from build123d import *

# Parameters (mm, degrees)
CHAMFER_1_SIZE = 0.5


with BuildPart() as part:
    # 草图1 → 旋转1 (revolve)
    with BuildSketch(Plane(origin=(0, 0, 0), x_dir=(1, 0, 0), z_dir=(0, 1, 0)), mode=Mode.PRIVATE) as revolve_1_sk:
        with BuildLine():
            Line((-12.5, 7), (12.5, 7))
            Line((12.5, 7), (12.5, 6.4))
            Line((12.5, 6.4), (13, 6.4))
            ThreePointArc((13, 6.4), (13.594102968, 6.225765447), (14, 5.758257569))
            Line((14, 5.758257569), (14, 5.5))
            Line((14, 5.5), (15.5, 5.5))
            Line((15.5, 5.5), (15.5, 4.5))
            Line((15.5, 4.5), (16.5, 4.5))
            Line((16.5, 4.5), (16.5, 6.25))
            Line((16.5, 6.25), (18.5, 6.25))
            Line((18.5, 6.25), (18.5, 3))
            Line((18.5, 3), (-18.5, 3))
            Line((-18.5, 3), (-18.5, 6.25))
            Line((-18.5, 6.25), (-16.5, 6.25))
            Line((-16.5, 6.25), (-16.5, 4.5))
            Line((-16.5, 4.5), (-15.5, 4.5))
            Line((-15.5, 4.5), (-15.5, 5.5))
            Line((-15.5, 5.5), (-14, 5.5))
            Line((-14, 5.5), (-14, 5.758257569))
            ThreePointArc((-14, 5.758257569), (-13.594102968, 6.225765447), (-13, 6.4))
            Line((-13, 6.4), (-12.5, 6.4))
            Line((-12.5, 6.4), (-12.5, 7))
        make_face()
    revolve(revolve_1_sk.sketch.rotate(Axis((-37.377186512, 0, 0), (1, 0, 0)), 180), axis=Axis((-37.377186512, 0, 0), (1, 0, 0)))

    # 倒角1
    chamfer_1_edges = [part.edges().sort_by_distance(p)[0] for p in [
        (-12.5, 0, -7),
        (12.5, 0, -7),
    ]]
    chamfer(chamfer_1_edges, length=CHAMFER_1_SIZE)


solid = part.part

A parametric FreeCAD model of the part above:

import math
import FreeCAD as App
import Part
import Sketcher

V = App.Vector
Q = App.Units.Quantity


def edges_at(feature, points):
    """Names of the edges that pass closest to the given points."""
    edges = feature.Shape.Edges
    near = lambda p: min(range(len(edges)), key=lambda i: edges[i].distToShape(Part.Vertex(*p))[0])
    return sorted({f"Edge{near(p) + 1}" for p in points})

doc = App.newDocument("Part")
body = doc.addObject("PartDesign::Body", "Body")

# Sketch on XZ plane
sketch1 = body.newObject("Sketcher::SketchObject", "Sketch")
sketch1.AttachmentSupport = (doc.getObject("XZ_Plane"), [""])
sketch1.MapMode = "FlatFace"
sketch1.addGeometry(Part.LineSegment(V(12.5, -7, 0), V(-12.5, -7, 0)), False)
sketch1.addGeometry(Part.LineSegment(V(-12.5, -7, 0), V(-12.5, -6.4, 0)), False)
sketch1.addGeometry(Part.LineSegment(V(-12.5, -6.4, 0), V(-13, -6.4, 0)), False)
sketch1.addGeometry(Part.ArcOfCircle(Part.Circle(V(-13, -5.3, 0), V(0, 0, 1), 1.1), math.radians(-155), math.radians(-90)), False)
sketch1.addGeometry(Part.LineSegment(V(-14, -5.76, 0), V(-14, -5.5, 0)), False)
sketch1.addGeometry(Part.LineSegment(V(-14, -5.5, 0), V(-15.5, -5.5, 0)), False)
sketch1.addGeometry(Part.LineSegment(V(-15.5, -5.5, 0), V(-15.5, -4.5, 0)), False)
sketch1.addGeometry(Part.LineSegment(V(-15.5, -4.5, 0), V(-16.5, -4.5, 0)), False)
sketch1.addGeometry(Part.LineSegment(V(-16.5, -4.5, 0), V(-16.5, -6.25, 0)), False)
sketch1.addGeometry(Part.LineSegment(V(-16.5, -6.25, 0), V(-18.5, -6.25, 0)), False)
sketch1.addGeometry(Part.LineSegment(V(-18.5, -6.25, 0), V(-18.5, -3, 0)), False)
sketch1.addGeometry(Part.LineSegment(V(-18.5, -3, 0), V(18.5, -3, 0)), False)
sketch1.addGeometry(Part.LineSegment(V(18.5, -3, 0), V(18.5, -6.25, 0)), False)
sketch1.addGeometry(Part.LineSegment(V(18.5, -6.25, 0), V(16.5, -6.25, 0)), False)
sketch1.addGeometry(Part.LineSegment(V(16.5, -6.25, 0), V(16.5, -4.5, 0)), False)
sketch1.addGeometry(Part.LineSegment(V(16.5, -4.5, 0), V(15.5, -4.5, 0)), False)
sketch1.addGeometry(Part.LineSegment(V(15.5, -4.5, 0), V(15.5, -5.5, 0)), False)
sketch1.addGeometry(Part.LineSegment(V(15.5, -5.5, 0), V(14, -5.5, 0)), False)
sketch1.addGeometry(Part.LineSegment(V(14, -5.5, 0), V(14, -5.76, 0)), False)
sketch1.addGeometry(Part.ArcOfCircle(Part.Circle(V(13, -5.3, 0), V(0, 0, 1), 1.1), math.radians(-90), math.radians(-25)), False)
sketch1.addGeometry(Part.LineSegment(V(13, -6.4, 0), V(12.5, -6.4, 0)), False)
sketch1.addGeometry(Part.LineSegment(V(12.5, -6.4, 0), V(12.5, -7, 0)), False)
sketch1.addConstraint(Sketcher.Constraint("Coincident", 0, 2, 1, 1))
sketch1.addConstraint(Sketcher.Constraint("Coincident", 1, 2, 2, 1))
sketch1.addConstraint(Sketcher.Constraint("Tangent", 2, 2, 3, 2))
sketch1.addConstraint(Sketcher.Constraint("Coincident", 3, 1, 4, 1))
sketch1.addConstraint(Sketcher.Constraint("Coincident", 4, 2, 5, 1))
sketch1.addConstraint(Sketcher.Constraint("Coincident", 5, 2, 6, 1))
sketch1.addConstraint(Sketcher.Constraint("Coincident", 6, 2, 7, 1))
sketch1.addConstraint(Sketcher.Constraint("Coincident", 7, 2, 8, 1))
sketch1.addConstraint(Sketcher.Constraint("Coincident", 8, 2, 9, 1))
sketch1.addConstraint(Sketcher.Constraint("Coincident", 9, 2, 10, 1))
sketch1.addConstraint(Sketcher.Constraint("Coincident", 10, 2, 11, 1))
sketch1.addConstraint(Sketcher.Constraint("Coincident", 11, 2, 12, 1))
sketch1.addConstraint(Sketcher.Constraint("Coincident", 12, 2, 13, 1))
sketch1.addConstraint(Sketcher.Constraint("Coincident", 13, 2, 14, 1))
sketch1.addConstraint(Sketcher.Constraint("Coincident", 14, 2, 15, 1))
sketch1.addConstraint(Sketcher.Constraint("Coincident", 15, 2, 16, 1))
sketch1.addConstraint(Sketcher.Constraint("Coincident", 16, 2, 17, 1))
sketch1.addConstraint(Sketcher.Constraint("Coincident", 17, 2, 18, 1))
sketch1.addConstraint(Sketcher.Constraint("Coincident", 18, 2, 19, 2))
sketch1.addConstraint(Sketcher.Constraint("Tangent", 19, 1, 20, 1))
sketch1.addConstraint(Sketcher.Constraint("Coincident", 20, 2, 21, 1))
sketch1.addConstraint(Sketcher.Constraint("Coincident", 21, 2, 0, 1))
sketch1.addConstraint(Sketcher.Constraint("Horizontal", 0))
sketch1.addConstraint(Sketcher.Constraint("Vertical", 1))
sketch1.addConstraint(Sketcher.Constraint("Horizontal", 2))
sketch1.addConstraint(Sketcher.Constraint("Vertical", 4))
sketch1.addConstraint(Sketcher.Constraint("Horizontal", 5))
sketch1.addConstraint(Sketcher.Constraint("Vertical", 6))
sketch1.addConstraint(Sketcher.Constraint("Horizontal", 7))
sketch1.addConstraint(Sketcher.Constraint("Vertical", 8))
sketch1.addConstraint(Sketcher.Constraint("Horizontal", 9))
sketch1.addConstraint(Sketcher.Constraint("Vertical", 10))
sketch1.addConstraint(Sketcher.Constraint("Horizontal", 11))
sketch1.addConstraint(Sketcher.Constraint("Vertical", 12))
sketch1.addConstraint(Sketcher.Constraint("Horizontal", 13))
sketch1.addConstraint(Sketcher.Constraint("Vertical", 14))
sketch1.addConstraint(Sketcher.Constraint("Horizontal", 15))
sketch1.addConstraint(Sketcher.Constraint("Vertical", 16))
sketch1.addConstraint(Sketcher.Constraint("Horizontal", 17))
sketch1.addConstraint(Sketcher.Constraint("Vertical", 18))
sketch1.addConstraint(Sketcher.Constraint("Horizontal", 20))
sketch1.addConstraint(Sketcher.Constraint("Vertical", 21))
sketch1.addConstraint(Sketcher.Constraint("Equal", 3, 19))
sketch1.addConstraint(Sketcher.Constraint("Symmetric", 3, 3, 19, 3, -2))
sketch1.addConstraint(Sketcher.Constraint("Symmetric", 9, 2, 12, 2, -2))
sketch1.addConstraint(Sketcher.Constraint("Symmetric", 7, 2, 14, 2, -2))
sketch1.addConstraint(Sketcher.Constraint("Symmetric", 5, 2, 16, 2, -2))
sketch1.addConstraint(Sketcher.Constraint("Horizontal", 3, 1, 18, 2))
sketch1.addConstraint(Sketcher.Constraint("Equal", 2, 20))
sketch1.addConstraint(Sketcher.Constraint("Equal", 15, 6))
sketch1.addConstraint(Sketcher.Constraint("Radius", 3, Q("1.1 mm")))
sketch1.addConstraint(Sketcher.Constraint("DistanceX", 0, 2, 0, 1, Q("25 mm")))
sketch1.addConstraint(Sketcher.Constraint("DistanceX", 7, 2, 7, 1, Q("1 mm")))
sketch1.addConstraint(Sketcher.Constraint("DistanceX", 9, 2, 9, 1, Q("2 mm")))
sketch1.addConstraint(Sketcher.Constraint("DistanceX", 11, 1, 11, 2, Q("37 mm")))
sketch1.addConstraint(Sketcher.Constraint("DistanceX", 2, 2, 2, 1, Q("0.5 mm")))
sketch1.addConstraint(Sketcher.Constraint("DistanceX", 5, 2, 5, 1, Q("1.5 mm")))
sketch1.addConstraint(Sketcher.Constraint("DistanceY", 1, 1, 1, 2, Q("0.6 mm")))
sketch1.addConstraint(Sketcher.Constraint("DistanceY", 0, 2, -1, 1, Q("7 mm")))
sketch1.addConstraint(Sketcher.Constraint("DistanceY", 10, 2, -1, 1, Q("3 mm")))
sketch1.addConstraint(Sketcher.Constraint("DistanceY", 8, 2, 8, 1, Q("1.75 mm")))
sketch1.addConstraint(Sketcher.Constraint("DistanceY", 10, 1, 10, 2, Q("3.25 mm")))
revolution = body.newObject("PartDesign::Revolution", "Revolution")
revolution.Profile = sketch1
revolution.ReferenceAxis = (sketch1, ["H_Axis"])
revolution.Angle = 360
doc.recompute()

chamfer = body.newObject("PartDesign::Chamfer", "Chamfer")
chamfer.Base = (revolution, edges_at(revolution, [(-12.5, 0, -7), (12.5, 0, -7)]))
chamfer.Size = 0.5

doc.recompute()
